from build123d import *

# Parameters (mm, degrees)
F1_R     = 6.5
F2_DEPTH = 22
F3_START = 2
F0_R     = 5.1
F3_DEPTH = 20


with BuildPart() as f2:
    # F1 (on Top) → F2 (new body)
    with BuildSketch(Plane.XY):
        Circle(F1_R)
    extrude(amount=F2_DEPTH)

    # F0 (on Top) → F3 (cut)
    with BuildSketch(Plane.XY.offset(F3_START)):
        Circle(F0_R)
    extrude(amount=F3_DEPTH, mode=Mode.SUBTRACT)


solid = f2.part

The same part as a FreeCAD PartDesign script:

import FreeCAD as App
import Part
import Sketcher
from FreeCAD import Vector
Q = App.Units.Quantity

doc = App.newDocument("Part")
params = doc.addObject("Spreadsheet::Sheet", "Params")
for row, (alias, value) in enumerate([
    ("sketch1_diameter", "13 mm"),
    ("pad1_length", "22 mm"),
    ("sketch2_diameter", "10.2 mm"),
    ("pocket1_length", "20 mm"),
], start=1):
    params.set(f"A{row}", alias)
    params.set(f"B{row}", "=" + value)
    params.setAlias(f"B{row}", alias)

body = doc.addObject("PartDesign::Body", "Body")

# Sketch on XY plane
sketch1 = body.newObject("Sketcher::SketchObject", "Sketch")
sketch1.AttachmentSupport = (doc.getObject("XY_Plane"), [""])
sketch1.MapMode = "FlatFace"
sketch1.addGeometry(Part.Circle(Vector(0, 0, 0), Vector(0, 0, 1), 6), False)
sketch1.addConstraint([
    Sketcher.Constraint("Coincident", 0, 3, -1, 1),
    Sketcher.Constraint("Diameter", 0, Q("13 mm")),
])
sketch1.setExpression("Constraints[1]", "Params.sketch1_diameter")
pad1 = body.newObject("PartDesign::Pad", "Pad")
pad1.Profile = sketch1
pad1.setExpression("Length", "Params.pad1_length")

# Sketch on XY plane
sketch2 = body.newObject("Sketcher::SketchObject", "Sketch001")
sketch2.AttachmentSupport = (doc.getObject("XY_Plane"), [""])
sketch2.MapMode = "FlatFace"
sketch2.AttachmentOffset = App.Placement(Vector(0, 0, 2), App.Rotation())
sketch2.addGeometry(Part.Circle(Vector(0, 0, 0), Vector(0, 0, 1), 5), False)
sketch2.addConstraint([
    Sketcher.Constraint("Coincident", 0, 3, -1, 1),
    Sketcher.Constraint("Diameter", 0, Q("10.2 mm")),
])
sketch2.setExpression("Constraints[1]", "Params.sketch2_diameter")
pocket1 = body.newObject("PartDesign::Pocket", "Pocket")
pocket1.Profile = sketch2
pocket1.setExpression("Length", "Params.pocket1_length")
pocket1.Reversed = True

doc.recompute()
